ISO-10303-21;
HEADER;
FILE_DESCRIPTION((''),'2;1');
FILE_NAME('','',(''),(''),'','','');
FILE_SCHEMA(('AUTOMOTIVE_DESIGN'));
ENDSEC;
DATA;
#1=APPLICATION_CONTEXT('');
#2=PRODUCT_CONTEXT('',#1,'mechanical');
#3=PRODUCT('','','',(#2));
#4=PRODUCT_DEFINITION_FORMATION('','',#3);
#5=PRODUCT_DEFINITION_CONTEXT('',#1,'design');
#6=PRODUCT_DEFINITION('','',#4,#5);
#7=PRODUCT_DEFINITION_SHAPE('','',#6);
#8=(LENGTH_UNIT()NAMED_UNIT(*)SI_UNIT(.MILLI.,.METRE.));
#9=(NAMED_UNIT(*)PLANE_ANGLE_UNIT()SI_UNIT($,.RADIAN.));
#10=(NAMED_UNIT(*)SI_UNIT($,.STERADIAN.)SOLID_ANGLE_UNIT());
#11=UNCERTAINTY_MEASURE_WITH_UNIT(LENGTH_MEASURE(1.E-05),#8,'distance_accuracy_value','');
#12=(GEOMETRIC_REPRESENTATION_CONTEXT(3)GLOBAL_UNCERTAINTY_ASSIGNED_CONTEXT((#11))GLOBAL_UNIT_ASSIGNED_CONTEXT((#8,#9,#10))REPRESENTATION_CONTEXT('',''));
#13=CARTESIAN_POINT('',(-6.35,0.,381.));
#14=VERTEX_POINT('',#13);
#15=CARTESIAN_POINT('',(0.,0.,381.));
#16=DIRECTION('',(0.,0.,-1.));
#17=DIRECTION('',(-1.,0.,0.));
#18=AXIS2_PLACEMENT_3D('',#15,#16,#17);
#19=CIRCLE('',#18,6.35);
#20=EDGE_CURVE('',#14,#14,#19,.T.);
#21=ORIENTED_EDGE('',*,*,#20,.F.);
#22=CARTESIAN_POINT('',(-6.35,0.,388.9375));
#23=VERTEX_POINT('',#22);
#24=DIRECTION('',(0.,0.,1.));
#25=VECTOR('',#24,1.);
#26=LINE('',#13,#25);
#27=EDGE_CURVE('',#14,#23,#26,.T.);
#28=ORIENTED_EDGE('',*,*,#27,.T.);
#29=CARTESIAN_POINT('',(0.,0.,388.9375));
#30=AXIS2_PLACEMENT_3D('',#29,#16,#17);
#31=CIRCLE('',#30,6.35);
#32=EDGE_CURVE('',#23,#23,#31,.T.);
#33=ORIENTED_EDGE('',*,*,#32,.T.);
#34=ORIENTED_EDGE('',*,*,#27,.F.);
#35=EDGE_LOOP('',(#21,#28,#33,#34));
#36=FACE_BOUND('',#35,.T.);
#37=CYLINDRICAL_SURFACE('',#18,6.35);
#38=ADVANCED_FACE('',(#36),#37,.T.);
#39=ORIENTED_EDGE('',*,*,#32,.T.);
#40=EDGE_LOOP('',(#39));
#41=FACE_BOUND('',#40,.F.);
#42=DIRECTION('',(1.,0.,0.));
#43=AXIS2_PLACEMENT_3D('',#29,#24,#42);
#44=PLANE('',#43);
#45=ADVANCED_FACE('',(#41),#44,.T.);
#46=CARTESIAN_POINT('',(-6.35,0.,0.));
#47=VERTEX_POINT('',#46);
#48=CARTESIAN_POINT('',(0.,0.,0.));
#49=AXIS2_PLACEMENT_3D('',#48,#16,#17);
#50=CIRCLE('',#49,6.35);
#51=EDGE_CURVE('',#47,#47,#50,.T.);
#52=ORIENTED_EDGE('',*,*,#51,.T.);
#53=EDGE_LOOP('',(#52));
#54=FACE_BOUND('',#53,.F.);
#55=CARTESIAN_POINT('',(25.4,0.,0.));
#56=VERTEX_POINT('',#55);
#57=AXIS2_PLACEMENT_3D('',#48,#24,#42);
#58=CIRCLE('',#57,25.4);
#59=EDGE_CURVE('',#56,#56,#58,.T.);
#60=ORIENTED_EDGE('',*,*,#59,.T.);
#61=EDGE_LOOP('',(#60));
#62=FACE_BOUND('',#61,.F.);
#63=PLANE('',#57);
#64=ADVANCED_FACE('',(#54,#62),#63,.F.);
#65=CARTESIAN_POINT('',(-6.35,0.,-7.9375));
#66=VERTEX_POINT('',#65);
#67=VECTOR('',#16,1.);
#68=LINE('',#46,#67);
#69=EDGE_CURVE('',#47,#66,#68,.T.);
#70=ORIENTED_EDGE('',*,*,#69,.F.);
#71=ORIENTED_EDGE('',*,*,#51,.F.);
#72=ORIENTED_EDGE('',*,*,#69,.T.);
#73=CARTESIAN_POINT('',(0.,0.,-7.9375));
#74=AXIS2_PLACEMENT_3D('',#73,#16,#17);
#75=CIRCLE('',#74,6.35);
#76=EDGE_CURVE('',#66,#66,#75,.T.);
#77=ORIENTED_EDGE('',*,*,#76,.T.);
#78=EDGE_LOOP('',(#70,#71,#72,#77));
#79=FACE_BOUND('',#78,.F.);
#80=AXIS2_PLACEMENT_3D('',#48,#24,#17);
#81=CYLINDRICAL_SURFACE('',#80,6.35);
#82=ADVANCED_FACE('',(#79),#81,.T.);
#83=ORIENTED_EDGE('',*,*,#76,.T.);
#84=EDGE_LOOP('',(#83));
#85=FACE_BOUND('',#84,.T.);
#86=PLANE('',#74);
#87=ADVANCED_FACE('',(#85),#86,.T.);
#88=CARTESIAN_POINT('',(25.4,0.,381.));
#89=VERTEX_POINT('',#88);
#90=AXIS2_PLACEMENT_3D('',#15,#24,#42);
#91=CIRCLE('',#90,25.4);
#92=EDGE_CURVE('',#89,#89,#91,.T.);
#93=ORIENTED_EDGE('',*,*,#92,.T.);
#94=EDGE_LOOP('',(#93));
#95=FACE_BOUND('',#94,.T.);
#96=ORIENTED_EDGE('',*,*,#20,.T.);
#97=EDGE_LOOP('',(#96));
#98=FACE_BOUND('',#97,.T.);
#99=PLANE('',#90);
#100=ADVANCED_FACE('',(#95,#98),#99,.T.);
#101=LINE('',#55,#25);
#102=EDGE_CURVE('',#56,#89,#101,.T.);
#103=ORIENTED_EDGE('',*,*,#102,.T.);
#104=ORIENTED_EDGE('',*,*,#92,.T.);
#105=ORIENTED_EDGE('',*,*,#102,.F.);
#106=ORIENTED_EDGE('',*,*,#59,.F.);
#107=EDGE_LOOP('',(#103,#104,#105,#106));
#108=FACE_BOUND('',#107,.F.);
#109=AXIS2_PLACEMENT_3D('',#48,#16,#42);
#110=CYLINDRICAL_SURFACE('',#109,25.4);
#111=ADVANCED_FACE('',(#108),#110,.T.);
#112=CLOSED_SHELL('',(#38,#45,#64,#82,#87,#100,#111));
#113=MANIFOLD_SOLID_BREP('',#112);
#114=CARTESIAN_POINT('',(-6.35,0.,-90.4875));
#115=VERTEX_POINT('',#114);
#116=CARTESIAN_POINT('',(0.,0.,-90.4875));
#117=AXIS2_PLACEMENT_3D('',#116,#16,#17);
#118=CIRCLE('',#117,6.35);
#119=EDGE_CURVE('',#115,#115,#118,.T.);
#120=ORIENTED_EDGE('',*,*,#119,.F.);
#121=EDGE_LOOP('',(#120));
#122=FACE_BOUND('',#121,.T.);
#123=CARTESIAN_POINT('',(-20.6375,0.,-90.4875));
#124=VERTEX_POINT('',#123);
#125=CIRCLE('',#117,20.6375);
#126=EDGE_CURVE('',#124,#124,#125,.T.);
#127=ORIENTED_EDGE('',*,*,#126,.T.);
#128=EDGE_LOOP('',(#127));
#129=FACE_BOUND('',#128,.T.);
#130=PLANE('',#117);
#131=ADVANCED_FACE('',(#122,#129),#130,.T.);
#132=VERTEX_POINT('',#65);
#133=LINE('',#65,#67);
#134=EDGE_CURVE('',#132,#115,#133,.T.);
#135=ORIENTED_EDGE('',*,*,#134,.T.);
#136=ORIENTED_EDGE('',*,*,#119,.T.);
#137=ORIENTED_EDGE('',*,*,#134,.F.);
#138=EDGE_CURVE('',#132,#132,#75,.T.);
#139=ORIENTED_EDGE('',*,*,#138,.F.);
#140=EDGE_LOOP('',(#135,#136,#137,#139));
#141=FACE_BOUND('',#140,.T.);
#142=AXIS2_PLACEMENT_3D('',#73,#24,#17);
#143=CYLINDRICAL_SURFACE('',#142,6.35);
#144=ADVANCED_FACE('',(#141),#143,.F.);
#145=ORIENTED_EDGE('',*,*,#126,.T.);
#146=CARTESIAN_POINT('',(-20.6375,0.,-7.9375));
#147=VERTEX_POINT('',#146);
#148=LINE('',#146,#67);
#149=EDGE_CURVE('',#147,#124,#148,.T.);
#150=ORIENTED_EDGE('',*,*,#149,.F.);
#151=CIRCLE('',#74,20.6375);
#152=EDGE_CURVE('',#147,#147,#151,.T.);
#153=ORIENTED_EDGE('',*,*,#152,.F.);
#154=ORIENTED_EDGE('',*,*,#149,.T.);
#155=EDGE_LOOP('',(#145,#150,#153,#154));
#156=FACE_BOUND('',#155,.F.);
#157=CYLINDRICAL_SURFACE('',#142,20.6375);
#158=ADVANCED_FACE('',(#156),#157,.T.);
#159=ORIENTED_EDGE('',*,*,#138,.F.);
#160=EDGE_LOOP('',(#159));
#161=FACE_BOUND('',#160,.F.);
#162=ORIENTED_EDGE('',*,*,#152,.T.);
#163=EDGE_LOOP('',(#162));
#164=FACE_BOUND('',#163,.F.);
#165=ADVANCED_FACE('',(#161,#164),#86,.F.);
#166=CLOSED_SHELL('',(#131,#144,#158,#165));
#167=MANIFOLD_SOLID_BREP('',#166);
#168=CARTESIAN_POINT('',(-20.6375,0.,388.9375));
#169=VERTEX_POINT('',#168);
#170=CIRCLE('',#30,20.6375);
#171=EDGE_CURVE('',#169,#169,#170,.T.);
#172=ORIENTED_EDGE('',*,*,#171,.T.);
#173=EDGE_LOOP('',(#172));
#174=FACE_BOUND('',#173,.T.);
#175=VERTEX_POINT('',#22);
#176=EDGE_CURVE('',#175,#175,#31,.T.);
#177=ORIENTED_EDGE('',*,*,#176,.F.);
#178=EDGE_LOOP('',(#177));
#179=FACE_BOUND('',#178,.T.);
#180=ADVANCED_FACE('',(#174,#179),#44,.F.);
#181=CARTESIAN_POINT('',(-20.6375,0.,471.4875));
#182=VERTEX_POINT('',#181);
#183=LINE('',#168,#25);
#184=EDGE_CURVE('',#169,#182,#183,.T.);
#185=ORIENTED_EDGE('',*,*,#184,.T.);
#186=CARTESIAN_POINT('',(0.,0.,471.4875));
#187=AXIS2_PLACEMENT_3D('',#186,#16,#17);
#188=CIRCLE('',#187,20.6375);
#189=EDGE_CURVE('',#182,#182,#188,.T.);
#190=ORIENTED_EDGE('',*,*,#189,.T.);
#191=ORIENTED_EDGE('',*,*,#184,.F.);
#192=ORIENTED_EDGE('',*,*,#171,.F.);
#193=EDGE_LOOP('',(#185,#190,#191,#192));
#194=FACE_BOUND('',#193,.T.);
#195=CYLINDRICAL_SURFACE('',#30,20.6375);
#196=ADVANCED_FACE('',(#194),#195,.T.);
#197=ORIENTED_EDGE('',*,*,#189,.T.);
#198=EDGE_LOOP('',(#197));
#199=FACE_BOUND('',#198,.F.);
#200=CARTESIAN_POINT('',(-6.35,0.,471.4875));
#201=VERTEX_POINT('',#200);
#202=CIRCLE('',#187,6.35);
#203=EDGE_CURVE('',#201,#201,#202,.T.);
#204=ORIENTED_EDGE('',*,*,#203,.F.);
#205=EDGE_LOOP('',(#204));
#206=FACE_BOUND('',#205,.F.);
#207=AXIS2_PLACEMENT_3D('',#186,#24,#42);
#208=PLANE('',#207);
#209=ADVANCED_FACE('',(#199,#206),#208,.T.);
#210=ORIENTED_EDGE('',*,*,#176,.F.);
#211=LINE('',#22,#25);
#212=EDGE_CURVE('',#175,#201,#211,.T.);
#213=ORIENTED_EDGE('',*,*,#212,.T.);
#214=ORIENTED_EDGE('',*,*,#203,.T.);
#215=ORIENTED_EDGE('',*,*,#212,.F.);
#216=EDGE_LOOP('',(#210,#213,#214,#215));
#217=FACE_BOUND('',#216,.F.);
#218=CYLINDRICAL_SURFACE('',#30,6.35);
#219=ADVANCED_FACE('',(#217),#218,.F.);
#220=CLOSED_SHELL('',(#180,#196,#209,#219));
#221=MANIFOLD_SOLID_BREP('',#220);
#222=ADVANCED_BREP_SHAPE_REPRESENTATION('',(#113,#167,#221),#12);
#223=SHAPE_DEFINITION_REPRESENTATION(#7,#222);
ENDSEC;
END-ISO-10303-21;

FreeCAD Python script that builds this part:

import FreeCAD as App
import Part
import Sketcher
Q = App.Units.Quantity

doc = App.newDocument("Part")
body = doc.addObject("PartDesign::Body", "Body")
body.AllowCompound = True

# Sketch on XY plane
sketch1 = body.newObject("Sketcher::SketchObject", "Sketch")
sketch1.AttachmentSupport = (doc.getObject("XY_Plane"), [""])
sketch1.MapMode = "FlatFace"
sketch1.addGeometry(Part.Circle(App.Vector(0, 0, 0), App.Vector(0, 0, 1), 25), False)
sketch1.addConstraint(Sketcher.Constraint("Coincident", 0, 3, -1, 1))
sketch1.addConstraint(Sketcher.Constraint("Diameter", 0, Q("2 in")))
pad1 = body.newObject("PartDesign::Pad", "Pad")
pad1.Profile = sketch1
pad1.Length = Q("15 in")

# Sketch on XY plane
sketch2 = body.newObject("Sketcher::SketchObject", "Sketch001")
sketch2.AttachmentSupport = (doc.getObject("XY_Plane"), [""])
sketch2.MapMode = "FlatFace"
sketch2.addGeometry(Part.Circle(App.Vector(0, 0, 0), App.Vector(0, 0, 1), 6), False)
sketch2.addConstraint(Sketcher.Constraint("Coincident", 0, 3, -1, 1))
sketch2.addConstraint(Sketcher.Constraint("Diameter", 0, Q("0.5 in")))
pad2 = body.newObject("PartDesign::Pad", "Pad001")
pad2.Profile = sketch2
pad2.Length = Q("0.3125 in")
pad2.Reversed = True

# Sketch on XY plane
sketch3 = body.newObject("Sketcher::SketchObject", "Sketch002")
sketch3.AttachmentSupport = (doc.getObject("XY_Plane"), [""])
sketch3.MapMode = "FlatFace"
sketch3.AttachmentOffset = App.Placement(App.Vector(0, 0, -0.3125 * 25.4), App.Rotation())
sketch3.addGeometry(Part.Circle(App.Vector(0, 0, 0), App.Vector(0, 0, 1), 21), False)
sketch3.addGeometry(Part.Circle(App.Vector(0, 0, 0), App.Vector(0, 0, 1), 6), False)
sketch3.addConstraint(Sketcher.Constraint("Coincident", 0, 3, -1, 1))
sketch3.addConstraint(Sketcher.Constraint("Coincident", 1, 3, -1, 1))
sketch3.addConstraint(Sketcher.Constraint("Diameter", 0, Q("1.625 in")))
sketch3.addConstraint(Sketcher.Constraint("Diameter", 1, Q("0.5 in")))
pad3 = body.newObject("PartDesign::Pad", "Pad002")
pad3.Profile = sketch3
pad3.Length = Q("3.25 in")
pad3.Reversed = True
doc.recompute()

datumplane = body.newObject("PartDesign::Plane", "DatumPlane")
datumplane.AttachmentSupport = (doc.getObject("XY_Plane"), [""])
datumplane.MapMode = "FlatFace"
datumplane.AttachmentOffset = App.Placement(App.Vector(0, 0, 7.5 * 25.4), App.Rotation())
mirrored = body.newObject("PartDesign::Mirrored", "Mirrored")
mirrored.Originals = [pad3, pad2]
mirrored.MirrorPlane = (datumplane, [""])
body.Tip = mirrored

doc.recompute()
